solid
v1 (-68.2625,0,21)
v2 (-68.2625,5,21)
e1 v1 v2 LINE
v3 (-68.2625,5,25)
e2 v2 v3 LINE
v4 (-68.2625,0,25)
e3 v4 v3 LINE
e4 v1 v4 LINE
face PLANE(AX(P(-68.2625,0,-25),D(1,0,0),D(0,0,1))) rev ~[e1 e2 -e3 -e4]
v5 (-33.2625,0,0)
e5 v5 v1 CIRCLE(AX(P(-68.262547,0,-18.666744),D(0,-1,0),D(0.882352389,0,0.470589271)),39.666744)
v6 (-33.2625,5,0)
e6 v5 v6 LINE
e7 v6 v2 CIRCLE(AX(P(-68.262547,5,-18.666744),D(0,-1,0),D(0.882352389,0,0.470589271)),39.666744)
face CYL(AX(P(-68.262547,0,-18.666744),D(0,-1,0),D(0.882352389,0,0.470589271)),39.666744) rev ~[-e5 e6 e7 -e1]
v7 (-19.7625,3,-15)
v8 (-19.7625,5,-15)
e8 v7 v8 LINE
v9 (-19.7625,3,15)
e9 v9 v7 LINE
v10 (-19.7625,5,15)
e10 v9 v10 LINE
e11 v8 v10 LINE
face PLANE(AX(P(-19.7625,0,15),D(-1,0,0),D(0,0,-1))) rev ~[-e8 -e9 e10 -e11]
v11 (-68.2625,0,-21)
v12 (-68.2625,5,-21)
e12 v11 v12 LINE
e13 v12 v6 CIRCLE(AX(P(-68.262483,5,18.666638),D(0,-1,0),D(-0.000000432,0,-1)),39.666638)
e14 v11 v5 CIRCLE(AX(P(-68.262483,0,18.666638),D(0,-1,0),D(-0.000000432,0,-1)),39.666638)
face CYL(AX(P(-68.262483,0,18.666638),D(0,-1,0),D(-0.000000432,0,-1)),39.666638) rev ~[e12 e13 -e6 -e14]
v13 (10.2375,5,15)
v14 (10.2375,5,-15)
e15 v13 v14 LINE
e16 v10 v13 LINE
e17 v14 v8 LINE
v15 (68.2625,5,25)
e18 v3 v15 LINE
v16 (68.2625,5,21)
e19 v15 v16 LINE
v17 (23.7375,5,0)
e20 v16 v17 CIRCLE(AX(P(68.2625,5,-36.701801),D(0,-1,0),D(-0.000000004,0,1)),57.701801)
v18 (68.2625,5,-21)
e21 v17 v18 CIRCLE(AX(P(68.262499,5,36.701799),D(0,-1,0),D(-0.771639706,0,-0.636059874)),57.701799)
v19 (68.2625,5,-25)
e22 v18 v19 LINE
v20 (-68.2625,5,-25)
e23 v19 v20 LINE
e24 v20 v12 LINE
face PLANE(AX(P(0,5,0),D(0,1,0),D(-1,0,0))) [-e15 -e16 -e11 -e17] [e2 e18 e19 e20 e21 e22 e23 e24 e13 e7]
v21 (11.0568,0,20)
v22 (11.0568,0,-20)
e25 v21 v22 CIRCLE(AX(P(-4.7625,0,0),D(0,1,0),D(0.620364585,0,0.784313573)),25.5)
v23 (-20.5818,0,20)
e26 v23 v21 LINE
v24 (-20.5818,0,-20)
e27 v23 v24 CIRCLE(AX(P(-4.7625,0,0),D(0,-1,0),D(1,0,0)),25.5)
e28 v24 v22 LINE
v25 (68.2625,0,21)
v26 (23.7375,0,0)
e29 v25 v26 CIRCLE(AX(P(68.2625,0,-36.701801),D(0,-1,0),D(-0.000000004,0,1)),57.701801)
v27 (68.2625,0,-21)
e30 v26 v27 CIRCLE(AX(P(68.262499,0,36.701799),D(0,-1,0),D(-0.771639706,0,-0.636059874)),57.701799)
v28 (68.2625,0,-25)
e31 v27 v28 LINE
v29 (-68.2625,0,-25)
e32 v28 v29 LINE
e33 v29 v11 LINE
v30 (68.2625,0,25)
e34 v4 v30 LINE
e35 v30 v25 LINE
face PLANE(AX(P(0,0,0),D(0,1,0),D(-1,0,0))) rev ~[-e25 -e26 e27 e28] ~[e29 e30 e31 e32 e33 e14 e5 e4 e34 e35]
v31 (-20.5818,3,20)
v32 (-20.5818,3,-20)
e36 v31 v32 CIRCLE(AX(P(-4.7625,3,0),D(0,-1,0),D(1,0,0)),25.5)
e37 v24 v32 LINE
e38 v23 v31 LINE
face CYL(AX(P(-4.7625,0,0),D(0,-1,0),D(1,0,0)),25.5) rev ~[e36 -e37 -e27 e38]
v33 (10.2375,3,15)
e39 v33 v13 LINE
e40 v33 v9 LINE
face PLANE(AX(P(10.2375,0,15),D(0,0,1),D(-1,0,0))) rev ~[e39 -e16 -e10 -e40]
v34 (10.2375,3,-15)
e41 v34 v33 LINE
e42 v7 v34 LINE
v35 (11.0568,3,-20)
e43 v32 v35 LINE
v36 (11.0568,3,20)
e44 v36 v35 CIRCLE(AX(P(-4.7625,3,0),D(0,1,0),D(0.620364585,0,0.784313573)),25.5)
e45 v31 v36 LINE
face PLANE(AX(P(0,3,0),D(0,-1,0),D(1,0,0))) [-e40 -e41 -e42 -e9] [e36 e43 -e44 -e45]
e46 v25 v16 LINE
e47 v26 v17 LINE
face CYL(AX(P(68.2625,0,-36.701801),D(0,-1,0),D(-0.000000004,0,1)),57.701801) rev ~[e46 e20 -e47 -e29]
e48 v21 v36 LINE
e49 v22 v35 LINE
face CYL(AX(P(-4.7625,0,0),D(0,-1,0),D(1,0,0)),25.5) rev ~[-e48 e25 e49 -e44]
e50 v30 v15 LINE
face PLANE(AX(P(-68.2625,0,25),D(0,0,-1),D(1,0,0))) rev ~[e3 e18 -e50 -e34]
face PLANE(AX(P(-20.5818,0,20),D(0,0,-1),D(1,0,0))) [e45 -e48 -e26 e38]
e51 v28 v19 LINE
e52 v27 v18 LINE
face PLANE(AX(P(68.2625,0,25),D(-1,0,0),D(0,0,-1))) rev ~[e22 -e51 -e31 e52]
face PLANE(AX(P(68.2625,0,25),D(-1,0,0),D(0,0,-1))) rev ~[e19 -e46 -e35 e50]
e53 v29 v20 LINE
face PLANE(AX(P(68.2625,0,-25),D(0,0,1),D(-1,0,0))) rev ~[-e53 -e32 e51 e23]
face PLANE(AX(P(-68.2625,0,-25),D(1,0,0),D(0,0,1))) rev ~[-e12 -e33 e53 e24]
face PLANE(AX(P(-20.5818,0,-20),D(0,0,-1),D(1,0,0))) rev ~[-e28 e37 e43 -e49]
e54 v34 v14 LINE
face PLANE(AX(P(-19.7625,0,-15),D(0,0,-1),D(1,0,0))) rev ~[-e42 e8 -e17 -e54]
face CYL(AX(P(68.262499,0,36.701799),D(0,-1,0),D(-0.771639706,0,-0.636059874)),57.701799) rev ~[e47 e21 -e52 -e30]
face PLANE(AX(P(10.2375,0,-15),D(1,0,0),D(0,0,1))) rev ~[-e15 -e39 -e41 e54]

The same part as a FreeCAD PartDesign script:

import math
import FreeCAD as App
import Part
import Sketcher
from FreeCAD import Vector
Q = App.Units.Quantity

doc = App.newDocument("Part")
body = doc.addObject("PartDesign::Body", "Body")

# Sketch on XZ plane
sketch1 = body.newObject("Sketcher::SketchObject", "Sketch")
sketch1.AttachmentSupport = (doc.getObject("XZ_Plane"), [""])
sketch1.MapMode = "FlatFace"
sketch1.addGeometry([
    Part.LineSegment(Vector(68, 25, 0), Vector(68, -25, 0)),
    Part.LineSegment(Vector(68, -25, 0), Vector(-68, -25, 0)),
    Part.LineSegment(Vector(-68, -25, 0), Vector(-68, 25, 0)),
    Part.LineSegment(Vector(-68, 25, 0), Vector(68, 25, 0)),
], False)
sketch1.addConstraint([
    Sketcher.Constraint("Coincident", 0, 2, 1, 1),
    Sketcher.Constraint("Coincident", 1, 2, 2, 1),
    Sketcher.Constraint("Coincident", 2, 2, 3, 1),
    Sketcher.Constraint("Coincident", 3, 2, 0, 1),
    Sketcher.Constraint("Vertical", 0),
    Sketcher.Constraint("Horizontal", 1),
    Sketcher.Constraint("Vertical", 2),
    Sketcher.Constraint("Horizontal", 3),
    Sketcher.Constraint("Symmetric", 0, 2, 2, 2, -1, 1),
    Sketcher.Constraint("DistanceY", 0, 2, 0, 1, Q("50 mm")),
    Sketcher.Constraint("DistanceX", 1, 2, 1, 1, Q("136.525 mm")),
])
pad1 = body.newObject("PartDesign::Pad", "Pad")
pad1.Profile = sketch1
pad1.Length = 5
pad1.Reversed = True

# Sketch on XZ plane
sketch2 = body.newObject("Sketcher::SketchObject", "Sketch001")
sketch2.AttachmentSupport = (doc.getObject("XZ_Plane"), [""])
sketch2.MapMode = "FlatFace"
sketch2.addGeometry([
    Part.ArcOfCircle(Part.Circle(Vector(-5, 0, 0), Vector(0, 0, 1), 26), math.radians(-52), math.radians(52)),
    Part.LineSegment(Vector(11, 20, 0), Vector(-21, 20, 0)),
    Part.ArcOfCircle(Part.Circle(Vector(-5, 0, 0), Vector(0, 0, 1), 26), math.radians(128), math.radians(232)),
    Part.LineSegment(Vector(-21, -20, 0), Vector(11, -20, 0)),
], False)
sketch2.addConstraint([
    Sketcher.Constraint("Coincident", 0, 2, 1, 1),
    Sketcher.Constraint("Coincident", 1, 2, 2, 1),
    Sketcher.Constraint("Coincident", 2, 2, 3, 1),
    Sketcher.Constraint("Coincident", 3, 2, 0, 1),
    Sketcher.Constraint("Horizontal", 1),
    Sketcher.Constraint("Horizontal", 3),
    Sketcher.Constraint("Coincident", 2, 3, 0, 3),
    Sketcher.Constraint("Equal", 0, 2),
    Sketcher.Constraint("Symmetric", 1, 2, 2, 2, -1),
    Sketcher.Constraint("Radius", 0, Q("25.5 mm")),
    Sketcher.Constraint("DistanceY", -1, 1, 0, 2, Q("20 mm")),
    Sketcher.Constraint("DistanceX", 0, 3, -1, 1, Q("4.7625 mm")),
])
pocket1 = body.newObject("PartDesign::Pocket", "Pocket")
pocket1.Profile = sketch2
pocket1.Length = 3

# Sketch on XZ plane
sketch3 = body.newObject("Sketcher::SketchObject", "Sketch002")
sketch3.AttachmentSupport = (doc.getObject("XZ_Plane"), [""])
sketch3.MapMode = "FlatFace"
sketch3.addGeometry([
    Part.LineSegment(Vector(68, -21, 0), Vector(68, 21, 0)),  # 0
    Part.ArcOfCircle(Part.Circle(Vector(68, -37, 0), Vector(0, 0, 1), 58), math.radians(90), math.radians(141)),  # 1
    Part.ArcOfCircle(Part.Circle(Vector(68, 37, 0), Vector(0, 0, 1), 58), math.radians(-141), math.radians(-90)),  # 2
    Part.LineSegment(Vector(-68, 21, 0), Vector(-68, -21, 0)),  # 3
    Part.ArcOfCircle(Part.Circle(Vector(-68, 19, 0), Vector(0, 0, 1), 40), math.radians(-90), math.radians(-28)),  # 4
    Part.ArcOfCircle(Part.Circle(Vector(-68, -19, 0), Vector(0, 0, 1), 40), math.radians(28), math.radians(90)),  # 5
    Part.LineSegment(Vector(10, -15, 0), Vector(10, 15, 0)),  # 6
    Part.LineSegment(Vector(10, 15, 0), Vector(-20, 15, 0)),  # 7
    Part.LineSegment(Vector(-20, 15, 0), Vector(-20, -15, 0)),  # 8
    Part.LineSegment(Vector(-20, -15, 0), Vector(10, -15, 0)),  # 9
], False)
sketch3.addConstraint([
    Sketcher.Constraint("Coincident", 0, 2, 1, 1),
    Sketcher.Constraint("Coincident", 1, 2, 2, 1),
    Sketcher.Constraint("Coincident", 2, 2, 0, 1),
    Sketcher.Constraint("Coincident", 3, 2, 4, 1),
    Sketcher.Constraint("Coincident", 4, 2, 5, 1),
    Sketcher.Constraint("Coincident", 5, 2, 3, 1),
    Sketcher.Constraint("Coincident", 6, 2, 7, 1),
    Sketcher.Constraint("Coincident", 7, 2, 8, 1),
    Sketcher.Constraint("Coincident", 8, 2, 9, 1),
    Sketcher.Constraint("Coincident", 9, 2, 6, 1),
    Sketcher.Constraint("Vertical", 0),
    Sketcher.Constraint("Vertical", 3),
    Sketcher.Constraint("Vertical", 6),
    Sketcher.Constraint("Horizontal", 7),
    Sketcher.Constraint("Vertical", 8),
    Sketcher.Constraint("Horizontal", 9),
    Sketcher.Constraint("Equal", 1, 2),
    Sketcher.Constraint("Equal", 4, 5),
    Sketcher.Constraint("Symmetric", 0, 2, 3, 2, -1, 1),
    Sketcher.Constraint("Symmetric", 1, 3, 2, 3, -1),
    Sketcher.Constraint("Symmetric", 4, 3, 5, 3, -1),
    Sketcher.Constraint("Vertical", 2, 3, 0, 2),
    Sketcher.Constraint("Vertical", 5, 3, 3, 2),
    Sketcher.Constraint("Equal", 9, 6),
    Sketcher.Constraint("DistanceX", 7, 2, 7, 1, Q("30 mm")),
    Sketcher.Constraint("DistanceY", 0, 1, 0, 2, Q("42 mm")),
    Sketcher.Constraint("DistanceY", -1, 1, 6, 2, Q("15 mm")),
    Sketcher.Constraint("DistanceX", 5, 3, 1, 2, Q("92 mm")),
    Sketcher.Constraint("DistanceX", 5, 3, 4, 2, Q("35 mm")),
    Sketcher.Constraint("Radius", 1, Q("57.7018 mm")),
    Sketcher.Constraint("DistanceX", 6, 2, 1, 2, Q("13.5 mm")),
])
pocket2 = body.newObject("PartDesign::Pocket", "Pocket001")
pocket2.Profile = sketch3
pocket2.Type = "ThroughAll"

doc.recompute()
